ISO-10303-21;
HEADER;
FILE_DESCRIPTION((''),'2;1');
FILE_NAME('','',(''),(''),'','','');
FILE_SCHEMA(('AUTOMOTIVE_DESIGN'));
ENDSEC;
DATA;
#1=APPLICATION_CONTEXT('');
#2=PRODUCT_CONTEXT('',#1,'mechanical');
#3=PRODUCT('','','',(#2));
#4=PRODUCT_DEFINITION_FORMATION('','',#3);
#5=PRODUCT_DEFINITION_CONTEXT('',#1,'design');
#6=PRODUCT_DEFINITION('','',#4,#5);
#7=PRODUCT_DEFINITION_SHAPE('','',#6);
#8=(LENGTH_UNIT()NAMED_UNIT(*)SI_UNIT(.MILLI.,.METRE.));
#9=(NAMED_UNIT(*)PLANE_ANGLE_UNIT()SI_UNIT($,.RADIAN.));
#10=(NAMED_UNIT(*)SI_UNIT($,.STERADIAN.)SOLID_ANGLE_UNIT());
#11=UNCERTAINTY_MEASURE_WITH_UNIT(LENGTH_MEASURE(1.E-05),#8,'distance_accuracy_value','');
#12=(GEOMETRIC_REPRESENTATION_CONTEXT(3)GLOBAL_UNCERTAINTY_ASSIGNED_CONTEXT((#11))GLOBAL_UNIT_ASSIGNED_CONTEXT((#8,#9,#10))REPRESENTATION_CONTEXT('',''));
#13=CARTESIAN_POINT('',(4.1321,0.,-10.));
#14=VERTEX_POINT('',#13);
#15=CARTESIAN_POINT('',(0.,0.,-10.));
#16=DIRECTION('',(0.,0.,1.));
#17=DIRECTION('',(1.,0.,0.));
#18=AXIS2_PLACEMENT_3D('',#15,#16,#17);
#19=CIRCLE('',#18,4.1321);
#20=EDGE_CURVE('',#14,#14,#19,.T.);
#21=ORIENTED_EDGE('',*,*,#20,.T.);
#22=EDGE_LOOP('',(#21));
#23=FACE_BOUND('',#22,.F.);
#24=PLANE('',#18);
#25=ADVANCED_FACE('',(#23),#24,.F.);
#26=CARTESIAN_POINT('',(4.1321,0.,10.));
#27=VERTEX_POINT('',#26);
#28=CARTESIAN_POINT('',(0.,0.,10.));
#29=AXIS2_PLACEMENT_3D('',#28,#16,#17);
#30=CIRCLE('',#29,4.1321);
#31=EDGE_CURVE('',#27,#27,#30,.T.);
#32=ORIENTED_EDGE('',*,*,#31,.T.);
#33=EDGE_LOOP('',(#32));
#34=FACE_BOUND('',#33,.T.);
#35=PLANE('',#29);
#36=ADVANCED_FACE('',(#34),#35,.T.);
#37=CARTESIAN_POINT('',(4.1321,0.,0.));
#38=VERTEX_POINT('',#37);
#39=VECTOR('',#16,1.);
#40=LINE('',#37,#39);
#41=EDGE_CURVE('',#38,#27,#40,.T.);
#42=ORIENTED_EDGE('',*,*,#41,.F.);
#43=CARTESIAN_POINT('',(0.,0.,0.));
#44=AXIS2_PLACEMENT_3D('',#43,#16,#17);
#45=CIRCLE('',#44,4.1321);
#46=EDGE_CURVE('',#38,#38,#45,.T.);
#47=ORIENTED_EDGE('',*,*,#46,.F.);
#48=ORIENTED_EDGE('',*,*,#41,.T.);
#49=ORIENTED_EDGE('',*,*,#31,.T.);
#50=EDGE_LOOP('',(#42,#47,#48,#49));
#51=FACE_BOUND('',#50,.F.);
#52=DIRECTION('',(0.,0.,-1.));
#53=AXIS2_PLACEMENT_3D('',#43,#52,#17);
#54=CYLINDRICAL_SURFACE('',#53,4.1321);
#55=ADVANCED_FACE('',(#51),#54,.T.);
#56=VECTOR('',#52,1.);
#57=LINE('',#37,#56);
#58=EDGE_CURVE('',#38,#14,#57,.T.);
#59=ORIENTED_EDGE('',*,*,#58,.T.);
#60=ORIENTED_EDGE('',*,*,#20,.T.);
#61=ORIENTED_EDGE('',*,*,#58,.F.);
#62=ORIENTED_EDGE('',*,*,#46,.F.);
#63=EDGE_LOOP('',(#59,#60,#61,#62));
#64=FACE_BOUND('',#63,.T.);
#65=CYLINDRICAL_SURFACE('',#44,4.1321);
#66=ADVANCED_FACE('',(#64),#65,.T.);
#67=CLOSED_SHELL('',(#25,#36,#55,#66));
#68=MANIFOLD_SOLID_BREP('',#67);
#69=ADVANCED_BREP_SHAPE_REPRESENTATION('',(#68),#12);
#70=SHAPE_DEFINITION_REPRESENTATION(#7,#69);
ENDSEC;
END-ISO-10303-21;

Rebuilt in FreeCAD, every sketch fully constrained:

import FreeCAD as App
import Part
import Sketcher

V = App.Vector
Q = App.Units.Quantity

doc = App.newDocument("Part")
body = doc.addObject("PartDesign::Body", "Body")

# Sketch on XY plane
sketch1 = body.newObject("Sketcher::SketchObject", "Sketch")
sketch1.AttachmentSupport = (doc.getObject("XY_Plane"), [""])
sketch1.MapMode = "FlatFace"
sketch1.addGeometry(Part.Circle(V(0, 0, 0), V(0, 0, 1), 4.1), False)
sketch1.addConstraint([
    Sketcher.Constraint("Coincident", 0, 3, -1, 1),
    Sketcher.Constraint("Diameter", 0, Q("8.2642 mm")),
])
pad1 = body.newObject("PartDesign::Pad", "Pad")
pad1.Profile = sketch1
pad1.Length = 20
pad1.Midplane = True

doc.recompute()
